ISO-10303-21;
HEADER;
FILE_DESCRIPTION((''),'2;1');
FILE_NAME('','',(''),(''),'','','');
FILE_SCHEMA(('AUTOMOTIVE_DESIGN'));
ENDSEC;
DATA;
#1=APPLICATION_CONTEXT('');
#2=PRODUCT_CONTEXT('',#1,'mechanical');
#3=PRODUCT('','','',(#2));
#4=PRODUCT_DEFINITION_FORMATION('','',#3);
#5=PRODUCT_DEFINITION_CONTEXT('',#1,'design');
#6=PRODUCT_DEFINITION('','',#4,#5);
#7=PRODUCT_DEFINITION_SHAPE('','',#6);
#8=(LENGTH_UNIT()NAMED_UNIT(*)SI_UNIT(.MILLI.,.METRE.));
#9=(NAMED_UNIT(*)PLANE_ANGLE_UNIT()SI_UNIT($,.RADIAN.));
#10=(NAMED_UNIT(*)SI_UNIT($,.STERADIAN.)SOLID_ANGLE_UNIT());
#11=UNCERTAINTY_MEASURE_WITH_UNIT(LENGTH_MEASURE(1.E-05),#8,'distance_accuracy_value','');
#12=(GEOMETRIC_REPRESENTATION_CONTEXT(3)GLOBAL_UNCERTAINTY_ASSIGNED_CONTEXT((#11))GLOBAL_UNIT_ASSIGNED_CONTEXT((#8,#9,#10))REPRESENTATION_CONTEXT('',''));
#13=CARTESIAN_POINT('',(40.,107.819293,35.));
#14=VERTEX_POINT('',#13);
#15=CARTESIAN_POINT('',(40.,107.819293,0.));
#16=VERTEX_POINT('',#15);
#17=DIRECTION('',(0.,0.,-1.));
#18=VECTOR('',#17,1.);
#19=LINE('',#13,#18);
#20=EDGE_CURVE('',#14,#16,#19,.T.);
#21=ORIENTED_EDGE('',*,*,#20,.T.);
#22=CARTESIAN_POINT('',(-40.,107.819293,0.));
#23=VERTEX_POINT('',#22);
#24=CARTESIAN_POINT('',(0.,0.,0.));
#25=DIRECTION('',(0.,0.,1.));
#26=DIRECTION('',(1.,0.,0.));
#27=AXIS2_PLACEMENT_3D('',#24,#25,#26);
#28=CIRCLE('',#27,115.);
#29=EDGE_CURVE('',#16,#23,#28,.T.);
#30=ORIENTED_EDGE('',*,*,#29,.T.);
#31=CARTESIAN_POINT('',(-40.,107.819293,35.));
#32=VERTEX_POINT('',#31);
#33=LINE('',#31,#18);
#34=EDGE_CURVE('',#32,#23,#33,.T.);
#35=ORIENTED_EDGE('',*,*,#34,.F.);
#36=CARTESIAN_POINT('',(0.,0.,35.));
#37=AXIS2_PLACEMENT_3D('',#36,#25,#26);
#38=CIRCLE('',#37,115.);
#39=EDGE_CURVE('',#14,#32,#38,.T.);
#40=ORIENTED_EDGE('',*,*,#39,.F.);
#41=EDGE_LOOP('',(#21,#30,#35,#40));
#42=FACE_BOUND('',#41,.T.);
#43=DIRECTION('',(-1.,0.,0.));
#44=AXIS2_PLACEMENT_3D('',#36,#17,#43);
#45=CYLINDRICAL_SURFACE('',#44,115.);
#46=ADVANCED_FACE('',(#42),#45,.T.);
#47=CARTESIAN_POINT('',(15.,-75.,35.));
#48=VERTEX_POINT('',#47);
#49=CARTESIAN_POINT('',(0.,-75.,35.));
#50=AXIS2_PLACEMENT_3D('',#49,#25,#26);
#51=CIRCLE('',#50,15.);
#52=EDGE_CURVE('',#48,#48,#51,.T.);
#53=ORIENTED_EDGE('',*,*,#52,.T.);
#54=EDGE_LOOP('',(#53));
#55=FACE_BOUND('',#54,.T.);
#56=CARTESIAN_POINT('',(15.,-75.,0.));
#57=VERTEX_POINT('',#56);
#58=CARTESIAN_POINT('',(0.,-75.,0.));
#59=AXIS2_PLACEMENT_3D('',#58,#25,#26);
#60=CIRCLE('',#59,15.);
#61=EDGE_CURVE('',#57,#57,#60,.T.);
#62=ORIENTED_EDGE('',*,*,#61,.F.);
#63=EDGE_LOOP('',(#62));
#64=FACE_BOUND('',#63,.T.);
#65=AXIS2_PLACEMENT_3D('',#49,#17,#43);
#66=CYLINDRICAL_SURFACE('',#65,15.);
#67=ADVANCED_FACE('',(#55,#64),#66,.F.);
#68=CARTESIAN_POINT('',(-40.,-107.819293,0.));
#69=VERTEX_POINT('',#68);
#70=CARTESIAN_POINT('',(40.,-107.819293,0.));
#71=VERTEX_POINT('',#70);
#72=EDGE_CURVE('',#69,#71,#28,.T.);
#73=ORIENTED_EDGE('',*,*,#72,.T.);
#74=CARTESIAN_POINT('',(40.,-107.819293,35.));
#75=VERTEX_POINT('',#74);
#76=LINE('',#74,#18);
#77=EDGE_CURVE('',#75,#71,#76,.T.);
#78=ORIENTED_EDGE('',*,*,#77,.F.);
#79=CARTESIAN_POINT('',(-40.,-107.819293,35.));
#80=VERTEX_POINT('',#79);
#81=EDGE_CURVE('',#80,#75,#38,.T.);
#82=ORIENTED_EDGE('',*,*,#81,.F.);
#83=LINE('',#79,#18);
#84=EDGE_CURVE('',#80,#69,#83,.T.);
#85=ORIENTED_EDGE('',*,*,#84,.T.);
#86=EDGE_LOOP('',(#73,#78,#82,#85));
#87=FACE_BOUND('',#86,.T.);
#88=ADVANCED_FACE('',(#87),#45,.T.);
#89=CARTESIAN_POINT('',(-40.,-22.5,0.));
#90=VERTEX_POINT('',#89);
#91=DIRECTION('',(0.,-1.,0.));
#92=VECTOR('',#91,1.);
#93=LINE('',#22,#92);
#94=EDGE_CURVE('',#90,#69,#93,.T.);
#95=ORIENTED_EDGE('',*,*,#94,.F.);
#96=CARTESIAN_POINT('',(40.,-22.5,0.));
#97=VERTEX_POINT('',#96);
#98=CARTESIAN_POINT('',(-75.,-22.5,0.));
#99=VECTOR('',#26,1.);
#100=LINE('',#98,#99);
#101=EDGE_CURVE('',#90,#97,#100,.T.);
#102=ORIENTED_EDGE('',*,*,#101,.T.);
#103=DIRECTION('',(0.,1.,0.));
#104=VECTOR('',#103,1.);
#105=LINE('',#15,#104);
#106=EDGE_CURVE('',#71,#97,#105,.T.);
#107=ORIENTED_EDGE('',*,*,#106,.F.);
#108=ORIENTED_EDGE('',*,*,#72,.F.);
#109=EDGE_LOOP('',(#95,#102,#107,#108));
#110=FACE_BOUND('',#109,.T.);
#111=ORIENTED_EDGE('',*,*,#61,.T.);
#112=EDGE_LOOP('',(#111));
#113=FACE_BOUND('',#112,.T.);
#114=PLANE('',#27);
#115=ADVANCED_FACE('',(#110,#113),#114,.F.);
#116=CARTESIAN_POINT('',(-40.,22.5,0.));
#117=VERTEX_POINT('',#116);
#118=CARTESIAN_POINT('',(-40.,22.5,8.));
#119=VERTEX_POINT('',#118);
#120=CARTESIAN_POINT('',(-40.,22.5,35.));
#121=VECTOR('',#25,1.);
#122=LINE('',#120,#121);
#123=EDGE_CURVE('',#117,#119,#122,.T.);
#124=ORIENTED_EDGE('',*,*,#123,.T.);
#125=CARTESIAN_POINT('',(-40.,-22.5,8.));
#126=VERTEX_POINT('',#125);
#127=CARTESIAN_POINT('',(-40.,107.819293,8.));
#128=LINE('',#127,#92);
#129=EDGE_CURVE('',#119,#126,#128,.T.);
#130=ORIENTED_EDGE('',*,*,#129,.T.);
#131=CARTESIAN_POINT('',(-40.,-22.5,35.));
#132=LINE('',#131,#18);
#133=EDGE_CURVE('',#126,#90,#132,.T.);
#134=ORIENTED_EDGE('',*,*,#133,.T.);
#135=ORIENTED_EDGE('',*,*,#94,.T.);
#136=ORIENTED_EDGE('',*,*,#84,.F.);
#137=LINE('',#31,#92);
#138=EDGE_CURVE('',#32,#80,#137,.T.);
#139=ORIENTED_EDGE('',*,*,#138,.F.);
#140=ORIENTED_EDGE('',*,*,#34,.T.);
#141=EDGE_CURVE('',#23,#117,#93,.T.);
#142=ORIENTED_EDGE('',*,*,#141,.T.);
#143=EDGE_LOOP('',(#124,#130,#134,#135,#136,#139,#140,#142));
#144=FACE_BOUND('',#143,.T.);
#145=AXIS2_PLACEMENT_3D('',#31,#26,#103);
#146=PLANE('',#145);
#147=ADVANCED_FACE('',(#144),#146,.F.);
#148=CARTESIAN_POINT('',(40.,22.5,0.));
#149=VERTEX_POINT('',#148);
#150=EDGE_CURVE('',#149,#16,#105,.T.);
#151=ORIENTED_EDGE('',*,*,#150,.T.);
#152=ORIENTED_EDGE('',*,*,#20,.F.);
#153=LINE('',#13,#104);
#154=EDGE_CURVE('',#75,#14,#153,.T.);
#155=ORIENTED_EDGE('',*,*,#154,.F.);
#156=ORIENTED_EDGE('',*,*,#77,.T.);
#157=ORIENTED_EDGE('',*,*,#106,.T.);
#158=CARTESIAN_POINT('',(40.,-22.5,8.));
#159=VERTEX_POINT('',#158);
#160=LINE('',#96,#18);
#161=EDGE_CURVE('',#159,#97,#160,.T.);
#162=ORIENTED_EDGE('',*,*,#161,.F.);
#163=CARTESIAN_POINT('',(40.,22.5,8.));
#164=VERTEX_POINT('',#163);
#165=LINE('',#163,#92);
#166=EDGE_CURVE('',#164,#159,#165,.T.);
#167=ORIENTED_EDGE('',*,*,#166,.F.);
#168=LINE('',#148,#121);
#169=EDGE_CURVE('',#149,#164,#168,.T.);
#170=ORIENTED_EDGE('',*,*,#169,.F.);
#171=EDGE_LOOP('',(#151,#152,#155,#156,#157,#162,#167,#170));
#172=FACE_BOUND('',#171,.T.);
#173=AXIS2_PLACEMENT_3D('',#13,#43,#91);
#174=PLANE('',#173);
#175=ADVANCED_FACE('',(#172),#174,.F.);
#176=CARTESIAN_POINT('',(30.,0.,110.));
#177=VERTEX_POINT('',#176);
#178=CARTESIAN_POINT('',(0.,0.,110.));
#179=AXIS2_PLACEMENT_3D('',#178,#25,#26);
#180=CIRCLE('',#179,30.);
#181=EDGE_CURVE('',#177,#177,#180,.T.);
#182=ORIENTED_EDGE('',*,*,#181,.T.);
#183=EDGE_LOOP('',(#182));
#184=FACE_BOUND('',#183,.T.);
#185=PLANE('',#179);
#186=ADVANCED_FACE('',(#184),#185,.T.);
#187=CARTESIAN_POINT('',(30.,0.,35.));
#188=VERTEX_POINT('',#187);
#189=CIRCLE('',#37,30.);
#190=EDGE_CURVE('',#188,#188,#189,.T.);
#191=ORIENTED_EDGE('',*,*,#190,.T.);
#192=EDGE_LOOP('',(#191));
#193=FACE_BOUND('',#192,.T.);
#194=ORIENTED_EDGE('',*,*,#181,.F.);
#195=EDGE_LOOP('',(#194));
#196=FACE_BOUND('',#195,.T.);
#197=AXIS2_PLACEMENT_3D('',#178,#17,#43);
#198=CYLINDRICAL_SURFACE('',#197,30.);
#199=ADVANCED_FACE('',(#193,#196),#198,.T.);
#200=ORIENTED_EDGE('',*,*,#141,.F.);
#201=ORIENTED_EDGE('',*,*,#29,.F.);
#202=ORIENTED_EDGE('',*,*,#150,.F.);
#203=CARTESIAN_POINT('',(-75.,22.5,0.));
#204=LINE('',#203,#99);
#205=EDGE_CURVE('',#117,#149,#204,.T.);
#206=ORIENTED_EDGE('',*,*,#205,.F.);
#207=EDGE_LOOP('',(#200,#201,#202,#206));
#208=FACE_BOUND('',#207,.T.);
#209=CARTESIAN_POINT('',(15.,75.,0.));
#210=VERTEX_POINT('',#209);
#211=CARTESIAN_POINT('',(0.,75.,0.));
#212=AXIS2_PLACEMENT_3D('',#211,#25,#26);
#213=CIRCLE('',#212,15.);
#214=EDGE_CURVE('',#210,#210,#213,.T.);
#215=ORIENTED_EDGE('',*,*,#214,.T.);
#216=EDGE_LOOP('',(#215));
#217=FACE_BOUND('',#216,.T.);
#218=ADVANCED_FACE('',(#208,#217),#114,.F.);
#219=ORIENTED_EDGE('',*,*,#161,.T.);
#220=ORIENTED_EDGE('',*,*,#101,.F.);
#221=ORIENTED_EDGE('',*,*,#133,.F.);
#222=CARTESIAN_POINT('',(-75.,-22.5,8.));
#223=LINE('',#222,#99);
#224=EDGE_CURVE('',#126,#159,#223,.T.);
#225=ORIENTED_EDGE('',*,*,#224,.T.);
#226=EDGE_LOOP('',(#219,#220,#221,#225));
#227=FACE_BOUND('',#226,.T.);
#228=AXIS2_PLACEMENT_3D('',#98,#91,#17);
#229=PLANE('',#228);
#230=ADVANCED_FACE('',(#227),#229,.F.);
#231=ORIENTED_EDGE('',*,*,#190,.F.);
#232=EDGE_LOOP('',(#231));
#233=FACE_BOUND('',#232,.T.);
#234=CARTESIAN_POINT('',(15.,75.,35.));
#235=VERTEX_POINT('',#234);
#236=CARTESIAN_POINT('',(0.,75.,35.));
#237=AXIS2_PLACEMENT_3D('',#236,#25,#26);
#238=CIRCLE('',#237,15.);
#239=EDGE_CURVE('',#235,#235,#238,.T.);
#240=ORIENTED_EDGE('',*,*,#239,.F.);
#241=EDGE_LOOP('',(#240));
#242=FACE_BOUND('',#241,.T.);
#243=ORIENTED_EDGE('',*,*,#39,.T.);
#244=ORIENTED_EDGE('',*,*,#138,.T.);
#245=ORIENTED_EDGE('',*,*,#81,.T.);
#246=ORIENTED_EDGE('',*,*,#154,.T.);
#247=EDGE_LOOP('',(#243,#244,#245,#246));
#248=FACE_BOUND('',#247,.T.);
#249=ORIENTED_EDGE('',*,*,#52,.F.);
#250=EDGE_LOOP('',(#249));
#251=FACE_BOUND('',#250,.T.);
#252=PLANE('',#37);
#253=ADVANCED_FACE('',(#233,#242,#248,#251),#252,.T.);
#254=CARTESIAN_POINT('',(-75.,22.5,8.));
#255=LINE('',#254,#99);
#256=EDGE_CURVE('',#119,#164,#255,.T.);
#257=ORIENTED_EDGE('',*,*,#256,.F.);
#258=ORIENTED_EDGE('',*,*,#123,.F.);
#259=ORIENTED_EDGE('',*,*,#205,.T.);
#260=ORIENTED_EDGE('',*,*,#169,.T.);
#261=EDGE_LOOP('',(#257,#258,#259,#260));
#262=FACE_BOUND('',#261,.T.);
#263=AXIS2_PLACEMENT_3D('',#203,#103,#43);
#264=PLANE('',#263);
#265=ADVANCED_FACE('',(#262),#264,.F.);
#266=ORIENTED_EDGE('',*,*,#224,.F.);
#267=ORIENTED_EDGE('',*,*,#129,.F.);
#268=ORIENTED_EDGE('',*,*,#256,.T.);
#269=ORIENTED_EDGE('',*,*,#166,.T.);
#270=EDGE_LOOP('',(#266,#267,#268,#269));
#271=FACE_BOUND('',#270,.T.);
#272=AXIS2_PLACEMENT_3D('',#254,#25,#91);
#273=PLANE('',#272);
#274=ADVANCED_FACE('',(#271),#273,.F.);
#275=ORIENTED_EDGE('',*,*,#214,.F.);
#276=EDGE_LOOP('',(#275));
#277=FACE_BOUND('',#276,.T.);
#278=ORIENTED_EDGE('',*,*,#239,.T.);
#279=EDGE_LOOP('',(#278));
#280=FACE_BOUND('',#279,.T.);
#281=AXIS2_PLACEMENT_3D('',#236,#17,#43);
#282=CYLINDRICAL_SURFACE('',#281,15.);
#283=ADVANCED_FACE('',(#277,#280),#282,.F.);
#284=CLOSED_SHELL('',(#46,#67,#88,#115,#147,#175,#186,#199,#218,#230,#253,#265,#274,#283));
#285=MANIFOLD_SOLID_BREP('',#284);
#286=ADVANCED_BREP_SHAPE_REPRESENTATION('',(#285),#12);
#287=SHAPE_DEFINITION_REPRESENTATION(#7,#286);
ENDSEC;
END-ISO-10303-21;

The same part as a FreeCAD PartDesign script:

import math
import FreeCAD as App
import Part
import Sketcher
from FreeCAD import Vector

doc = App.newDocument("Part")
body = doc.addObject("PartDesign::Body", "Body")

sketch1 = body.newObject("Sketcher::SketchObject", "Sketch")
sketch1.AttachmentSupport = (doc.getObject("XY_Plane"), [""])
sketch1.MapMode = "FlatFace"
sketch1.addGeometry([
    Part.LineSegment(Vector(-40, 108, 0), Vector(-40, -108, 0)),
    Part.ArcOfCircle(Part.Circle(Vector(0, 0, 0), Vector(0, 0, 1), 115), math.radians(-110), math.radians(-70)),
    Part.LineSegment(Vector(40, -108, 0), Vector(40, 108, 0)),
    Part.ArcOfCircle(Part.Circle(Vector(0, 0, 0), Vector(0, 0, 1), 115), math.radians(70), math.radians(110)),
    Part.Circle(Vector(0, -75, 0), Vector(0, 0, 1), 15),
    Part.Circle(Vector(0, 75, 0), Vector(0, 0, 1), 15),
], False)
sketch1.addConstraint([
    Sketcher.Constraint("Coincident", 0, 2, 1, 1),
    Sketcher.Constraint("Coincident", 1, 2, 2, 1),
    Sketcher.Constraint("Coincident", 2, 2, 3, 1),
    Sketcher.Constraint("Coincident", 3, 2, 0, 1),
    Sketcher.Constraint("Vertical", 0),
    Sketcher.Constraint("Vertical", 2),
    Sketcher.Constraint("Coincident", 1, 3, -1, 1),
    Sketcher.Constraint("Coincident", 3, 3, -1, 1),
    Sketcher.Constraint("Equal", 1, 3),
    Sketcher.Constraint("Equal", 4, 5),
    Sketcher.Constraint("Symmetric", 4, 3, 5, 3, -1, 1),
    Sketcher.Constraint("PointOnObject", 4, 3, -2),
    Sketcher.Constraint("Horizontal", 0, 2, 1, 2),
    Sketcher.Constraint("Diameter", 4, 30.0),
    Sketcher.Constraint("Radius", 1, 115.0),
    Sketcher.Constraint("DistanceY", 4, 3, -1, 1, 75.0),
    Sketcher.Constraint("DistanceX", 0, 2, -1, 1, 40.0),
])
pad1 = body.newObject("PartDesign::Pad", "Pad")
pad1.Profile = sketch1
pad1.Length = 35

sketch2 = body.newObject("Sketcher::SketchObject", "Sketch001")
sketch2.AttachmentSupport = (doc.getObject("YZ_Plane"), [""])
sketch2.MapMode = "FlatFace"
sketch2.AttachmentOffset = App.Placement(Vector(0, 0, 40), App.Rotation())
sketch2.addGeometry([
    Part.LineSegment(Vector(22, 8, 0), Vector(-22, 8, 0)),
    Part.LineSegment(Vector(-22, 8, 0), Vector(-22, 0, 0)),
    Part.LineSegment(Vector(-22, 0, 0), Vector(22, 0, 0)),
    Part.LineSegment(Vector(22, 0, 0), Vector(22, 8, 0)),
], False)
sketch2.addConstraint([
    Sketcher.Constraint("Coincident", 0, 2, 1, 1),
    Sketcher.Constraint("Coincident", 1, 2, 2, 1),
    Sketcher.Constraint("Coincident", 2, 2, 3, 1),
    Sketcher.Constraint("Coincident", 3, 2, 0, 1),
    Sketcher.Constraint("Horizontal", 0),
    Sketcher.Constraint("Vertical", 1),
    Sketcher.Constraint("Horizontal", 2),
    Sketcher.Constraint("Vertical", 3),
    Sketcher.Constraint("Symmetric", 1, 2, 2, 2, -1, 1),
    Sketcher.Constraint("DistanceX", 0, 2, 0, 1, 45.0),
    Sketcher.Constraint("DistanceY", 1, 2, 1, 1, 8.0),
])
pocket1 = body.newObject("PartDesign::Pocket", "Pocket")
pocket1.Profile = sketch2
pocket1.Length = 115

sketch3 = body.newObject("Sketcher::SketchObject", "Sketch002")
sketch3.AttachmentSupport = (doc.getObject("XY_Plane"), [""])
sketch3.MapMode = "FlatFace"
sketch3.AttachmentOffset = App.Placement(Vector(0, 0, 35), App.Rotation())
sketch3.addGeometry(Part.Circle(Vector(0, 0, 0), Vector(0, 0, 1), 30), False)
sketch3.addConstraint([
    Sketcher.Constraint("Coincident", 0, 3, -1, 1),
    Sketcher.Constraint("Diameter", 0, 60.0),
])
pad2 = body.newObject("PartDesign::Pad", "Pad001")
pad2.Profile = sketch3
pad2.Length = 75

doc.recompute()
